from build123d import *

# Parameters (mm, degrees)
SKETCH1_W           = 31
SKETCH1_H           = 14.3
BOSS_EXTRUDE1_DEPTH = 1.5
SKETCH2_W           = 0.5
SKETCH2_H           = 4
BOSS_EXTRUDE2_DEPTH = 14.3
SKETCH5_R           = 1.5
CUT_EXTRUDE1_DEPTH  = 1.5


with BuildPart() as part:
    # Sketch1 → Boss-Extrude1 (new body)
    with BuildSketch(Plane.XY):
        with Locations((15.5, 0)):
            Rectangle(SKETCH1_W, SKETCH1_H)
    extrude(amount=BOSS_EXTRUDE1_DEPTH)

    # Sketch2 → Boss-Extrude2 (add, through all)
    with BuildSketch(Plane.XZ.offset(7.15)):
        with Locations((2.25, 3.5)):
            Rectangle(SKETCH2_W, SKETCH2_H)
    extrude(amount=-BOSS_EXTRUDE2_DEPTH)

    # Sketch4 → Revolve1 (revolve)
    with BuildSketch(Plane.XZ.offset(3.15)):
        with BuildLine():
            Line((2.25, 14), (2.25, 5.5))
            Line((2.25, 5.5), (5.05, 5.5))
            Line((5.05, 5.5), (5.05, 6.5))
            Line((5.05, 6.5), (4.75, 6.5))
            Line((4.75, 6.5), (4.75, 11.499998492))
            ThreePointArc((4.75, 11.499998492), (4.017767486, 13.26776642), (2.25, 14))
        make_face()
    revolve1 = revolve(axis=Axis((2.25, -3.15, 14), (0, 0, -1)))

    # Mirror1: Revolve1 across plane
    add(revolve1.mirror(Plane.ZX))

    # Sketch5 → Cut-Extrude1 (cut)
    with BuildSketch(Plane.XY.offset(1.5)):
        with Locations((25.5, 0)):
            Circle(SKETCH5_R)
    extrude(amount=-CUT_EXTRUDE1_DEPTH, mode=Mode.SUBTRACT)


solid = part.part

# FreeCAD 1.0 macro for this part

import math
import FreeCAD as App
import Part
import Sketcher
Q = App.Units.Quantity

doc = App.newDocument("Part")
body = doc.addObject("PartDesign::Body", "Body")

sketch1 = body.newObject("Sketcher::SketchObject", "Sketch")
sketch1.AttachmentSupport = (doc.getObject("XY_Plane"), [""])
sketch1.MapMode = "FlatFace"
sketch1.addGeometry([
    Part.LineSegment(App.Vector(0, 7, 0), App.Vector(0, -7, 0)),
    Part.LineSegment(App.Vector(0, -7, 0), App.Vector(31, -7, 0)),
    Part.LineSegment(App.Vector(31, -7, 0), App.Vector(31, 7, 0)),
    Part.LineSegment(App.Vector(31, 7, 0), App.Vector(0, 7, 0)),
], False)
sketch1.addConstraint([
    Sketcher.Constraint("Coincident", 0, 2, 1, 1),
    Sketcher.Constraint("Coincident", 1, 2, 2, 1),
    Sketcher.Constraint("Coincident", 2, 2, 3, 1),
    Sketcher.Constraint("Coincident", 3, 2, 0, 1),
    Sketcher.Constraint("Vertical", 0),
    Sketcher.Constraint("Horizontal", 1),
    Sketcher.Constraint("Vertical", 2),
    Sketcher.Constraint("Horizontal", 3),
    Sketcher.Constraint("Symmetric", 0, 2, 3, 2, -1, 1),
    Sketcher.Constraint("DistanceX", 1, 1, 1, 2, Q("31 mm")),
    Sketcher.Constraint("DistanceY", 0, 2, 0, 1, Q("14.3 mm")),
])
pad1 = body.newObject("PartDesign::Pad", "Pad")
pad1.Profile = sketch1
pad1.Length = 1.5

sketch2 = body.newObject("Sketcher::SketchObject", "Sketch001")
sketch2.AttachmentSupport = (doc.getObject("XZ_Plane"), [""])
sketch2.MapMode = "FlatFace"
sketch2.AttachmentOffset = App.Placement(App.Vector(0, 0, 7.15), App.Rotation())
sketch2.addGeometry([
    Part.LineSegment(App.Vector(2, 5.5, 0), App.Vector(2, 1.5, 0)),
    Part.LineSegment(App.Vector(2, 1.5, 0), App.Vector(2.5, 1.5, 0)),
    Part.LineSegment(App.Vector(2.5, 1.5, 0), App.Vector(2.5, 5.5, 0)),
    Part.LineSegment(App.Vector(2.5, 5.5, 0), App.Vector(2, 5.5, 0)),
], False)
sketch2.addConstraint([
    Sketcher.Constraint("Coincident", 0, 2, 1, 1),
    Sketcher.Constraint("Coincident", 1, 2, 2, 1),
    Sketcher.Constraint("Coincident", 2, 2, 3, 1),
    Sketcher.Constraint("Coincident", 3, 2, 0, 1),
    Sketcher.Constraint("Vertical", 0),
    Sketcher.Constraint("Horizontal", 1),
    Sketcher.Constraint("Vertical", 2),
    Sketcher.Constraint("Horizontal", 3),
    Sketcher.Constraint("DistanceY", 0, 2, 0, 1, Q("4 mm")),
    Sketcher.Constraint("DistanceX", 1, 1, 1, 2, Q("0.5 mm")),
    Sketcher.Constraint("DistanceX", -1, 1, 0, 2, Q("2 mm")),
    Sketcher.Constraint("DistanceY", -1, 1, 0, 2, Q("1.5 mm")),
])
pad2 = body.newObject("PartDesign::Pad", "Pad001")
pad2.Profile = sketch2
pad2.Length = 14.3
pad2.Reversed = True

sketch3 = body.newObject("Sketcher::SketchObject", "Sketch002")
sketch3.AttachmentSupport = (doc.getObject("XZ_Plane"), [""])
sketch3.MapMode = "FlatFace"
sketch3.AttachmentOffset = App.Placement(App.Vector(0, 0, 3.15), App.Rotation())
sketch3.addGeometry([
    Part.LineSegment(App.Vector(2.25, 14, 0), App.Vector(2.25, 5.5, 0)),
    Part.LineSegment(App.Vector(2.25, 5.5, 0), App.Vector(5.05, 5.5, 0)),
    Part.LineSegment(App.Vector(5.05, 5.5, 0), App.Vector(5.05, 6.5, 0)),
    Part.LineSegment(App.Vector(5.05, 6.5, 0), App.Vector(4.75, 6.5, 0)),
    Part.LineSegment(App.Vector(4.75, 6.5, 0), App.Vector(4.75, 11.5, 0)),
    Part.ArcOfCircle(Part.Circle(App.Vector(2.25, 11.5, 0), App.Vector(0, 0, 1), 2.5), math.radians(0), math.radians(90)),
], False)
sketch3.addGeometry(Part.LineSegment(App.Vector(2.25, 14, 0), App.Vector(2.25, 5.5, 0)), True)
sketch3.addConstraint([
    Sketcher.Constraint("Coincident", 0, 2, 1, 1),
    Sketcher.Constraint("Coincident", 1, 2, 2, 1),
    Sketcher.Constraint("Coincident", 2, 2, 3, 1),
    Sketcher.Constraint("Coincident", 3, 2, 4, 1),
    Sketcher.Constraint("Tangent", 4, 2, 5, 1),
    Sketcher.Constraint("Coincident", 5, 2, 0, 1),
    Sketcher.Constraint("Vertical", 0),
    Sketcher.Constraint("Horizontal", 1),
    Sketcher.Constraint("Vertical", 2),
    Sketcher.Constraint("Horizontal", 3),
    Sketcher.Constraint("Vertical", 4),
    Sketcher.Constraint("Vertical", 6),
    Sketcher.Constraint("Coincident", 6, 1, 5, 2),
    Sketcher.Constraint("Horizontal", 1, 2, 6, 2),
    Sketcher.Constraint("Vertical", 5, 3, 0, 2),
    Sketcher.Constraint("Radius", 5, Q("2.5 mm")),
    Sketcher.Constraint("DistanceY", 2, 1, 2, 2, Q("1 mm")),
    Sketcher.Constraint("DistanceY", 4, 1, 4, 2, Q("4.999998 mm")),
    Sketcher.Constraint("DistanceX", 1, 1, 1, 2, Q("2.8 mm")),
    Sketcher.Constraint("DistanceY", -1, 1, 5, 2, Q("14 mm")),
    Sketcher.Constraint("DistanceX", -1, 1, 5, 3, Q("2.25 mm")),
])
revolution = body.newObject("PartDesign::Revolution", "Revolution")
revolution.Profile = sketch3
revolution.ReferenceAxis = (sketch3, ["Axis0"])
revolution.Angle = 360
doc.recompute()

mirrored = body.newObject("PartDesign::Mirrored", "Mirrored")
mirrored.Originals = [revolution]
mirrored.MirrorPlane = (doc.getObject("XZ_Plane"), [""])
body.Tip = mirrored

sketch4 = body.newObject("Sketcher::SketchObject", "Sketch003")
sketch4.AttachmentSupport = (doc.getObject("XY_Plane"), [""])
sketch4.MapMode = "FlatFace"
sketch4.AttachmentOffset = App.Placement(App.Vector(0, 0, 1.5), App.Rotation())
sketch4.addGeometry(Part.Circle(App.Vector(25.5, 0, 0), App.Vector(0, 0, 1), 1.5), False)
sketch4.addConstraint([
    Sketcher.Constraint("PointOnObject", 0, 3, -1),
    Sketcher.Constraint("Diameter", 0, Q("3 mm")),
    Sketcher.Constraint("DistanceX", -1, 1, 0, 3, Q("25.5 mm")),
])
pocket1 = body.newObject("PartDesign::Pocket", "Pocket")
pocket1.Profile = sketch4
pocket1.Length = 1.5

doc.recompute()
